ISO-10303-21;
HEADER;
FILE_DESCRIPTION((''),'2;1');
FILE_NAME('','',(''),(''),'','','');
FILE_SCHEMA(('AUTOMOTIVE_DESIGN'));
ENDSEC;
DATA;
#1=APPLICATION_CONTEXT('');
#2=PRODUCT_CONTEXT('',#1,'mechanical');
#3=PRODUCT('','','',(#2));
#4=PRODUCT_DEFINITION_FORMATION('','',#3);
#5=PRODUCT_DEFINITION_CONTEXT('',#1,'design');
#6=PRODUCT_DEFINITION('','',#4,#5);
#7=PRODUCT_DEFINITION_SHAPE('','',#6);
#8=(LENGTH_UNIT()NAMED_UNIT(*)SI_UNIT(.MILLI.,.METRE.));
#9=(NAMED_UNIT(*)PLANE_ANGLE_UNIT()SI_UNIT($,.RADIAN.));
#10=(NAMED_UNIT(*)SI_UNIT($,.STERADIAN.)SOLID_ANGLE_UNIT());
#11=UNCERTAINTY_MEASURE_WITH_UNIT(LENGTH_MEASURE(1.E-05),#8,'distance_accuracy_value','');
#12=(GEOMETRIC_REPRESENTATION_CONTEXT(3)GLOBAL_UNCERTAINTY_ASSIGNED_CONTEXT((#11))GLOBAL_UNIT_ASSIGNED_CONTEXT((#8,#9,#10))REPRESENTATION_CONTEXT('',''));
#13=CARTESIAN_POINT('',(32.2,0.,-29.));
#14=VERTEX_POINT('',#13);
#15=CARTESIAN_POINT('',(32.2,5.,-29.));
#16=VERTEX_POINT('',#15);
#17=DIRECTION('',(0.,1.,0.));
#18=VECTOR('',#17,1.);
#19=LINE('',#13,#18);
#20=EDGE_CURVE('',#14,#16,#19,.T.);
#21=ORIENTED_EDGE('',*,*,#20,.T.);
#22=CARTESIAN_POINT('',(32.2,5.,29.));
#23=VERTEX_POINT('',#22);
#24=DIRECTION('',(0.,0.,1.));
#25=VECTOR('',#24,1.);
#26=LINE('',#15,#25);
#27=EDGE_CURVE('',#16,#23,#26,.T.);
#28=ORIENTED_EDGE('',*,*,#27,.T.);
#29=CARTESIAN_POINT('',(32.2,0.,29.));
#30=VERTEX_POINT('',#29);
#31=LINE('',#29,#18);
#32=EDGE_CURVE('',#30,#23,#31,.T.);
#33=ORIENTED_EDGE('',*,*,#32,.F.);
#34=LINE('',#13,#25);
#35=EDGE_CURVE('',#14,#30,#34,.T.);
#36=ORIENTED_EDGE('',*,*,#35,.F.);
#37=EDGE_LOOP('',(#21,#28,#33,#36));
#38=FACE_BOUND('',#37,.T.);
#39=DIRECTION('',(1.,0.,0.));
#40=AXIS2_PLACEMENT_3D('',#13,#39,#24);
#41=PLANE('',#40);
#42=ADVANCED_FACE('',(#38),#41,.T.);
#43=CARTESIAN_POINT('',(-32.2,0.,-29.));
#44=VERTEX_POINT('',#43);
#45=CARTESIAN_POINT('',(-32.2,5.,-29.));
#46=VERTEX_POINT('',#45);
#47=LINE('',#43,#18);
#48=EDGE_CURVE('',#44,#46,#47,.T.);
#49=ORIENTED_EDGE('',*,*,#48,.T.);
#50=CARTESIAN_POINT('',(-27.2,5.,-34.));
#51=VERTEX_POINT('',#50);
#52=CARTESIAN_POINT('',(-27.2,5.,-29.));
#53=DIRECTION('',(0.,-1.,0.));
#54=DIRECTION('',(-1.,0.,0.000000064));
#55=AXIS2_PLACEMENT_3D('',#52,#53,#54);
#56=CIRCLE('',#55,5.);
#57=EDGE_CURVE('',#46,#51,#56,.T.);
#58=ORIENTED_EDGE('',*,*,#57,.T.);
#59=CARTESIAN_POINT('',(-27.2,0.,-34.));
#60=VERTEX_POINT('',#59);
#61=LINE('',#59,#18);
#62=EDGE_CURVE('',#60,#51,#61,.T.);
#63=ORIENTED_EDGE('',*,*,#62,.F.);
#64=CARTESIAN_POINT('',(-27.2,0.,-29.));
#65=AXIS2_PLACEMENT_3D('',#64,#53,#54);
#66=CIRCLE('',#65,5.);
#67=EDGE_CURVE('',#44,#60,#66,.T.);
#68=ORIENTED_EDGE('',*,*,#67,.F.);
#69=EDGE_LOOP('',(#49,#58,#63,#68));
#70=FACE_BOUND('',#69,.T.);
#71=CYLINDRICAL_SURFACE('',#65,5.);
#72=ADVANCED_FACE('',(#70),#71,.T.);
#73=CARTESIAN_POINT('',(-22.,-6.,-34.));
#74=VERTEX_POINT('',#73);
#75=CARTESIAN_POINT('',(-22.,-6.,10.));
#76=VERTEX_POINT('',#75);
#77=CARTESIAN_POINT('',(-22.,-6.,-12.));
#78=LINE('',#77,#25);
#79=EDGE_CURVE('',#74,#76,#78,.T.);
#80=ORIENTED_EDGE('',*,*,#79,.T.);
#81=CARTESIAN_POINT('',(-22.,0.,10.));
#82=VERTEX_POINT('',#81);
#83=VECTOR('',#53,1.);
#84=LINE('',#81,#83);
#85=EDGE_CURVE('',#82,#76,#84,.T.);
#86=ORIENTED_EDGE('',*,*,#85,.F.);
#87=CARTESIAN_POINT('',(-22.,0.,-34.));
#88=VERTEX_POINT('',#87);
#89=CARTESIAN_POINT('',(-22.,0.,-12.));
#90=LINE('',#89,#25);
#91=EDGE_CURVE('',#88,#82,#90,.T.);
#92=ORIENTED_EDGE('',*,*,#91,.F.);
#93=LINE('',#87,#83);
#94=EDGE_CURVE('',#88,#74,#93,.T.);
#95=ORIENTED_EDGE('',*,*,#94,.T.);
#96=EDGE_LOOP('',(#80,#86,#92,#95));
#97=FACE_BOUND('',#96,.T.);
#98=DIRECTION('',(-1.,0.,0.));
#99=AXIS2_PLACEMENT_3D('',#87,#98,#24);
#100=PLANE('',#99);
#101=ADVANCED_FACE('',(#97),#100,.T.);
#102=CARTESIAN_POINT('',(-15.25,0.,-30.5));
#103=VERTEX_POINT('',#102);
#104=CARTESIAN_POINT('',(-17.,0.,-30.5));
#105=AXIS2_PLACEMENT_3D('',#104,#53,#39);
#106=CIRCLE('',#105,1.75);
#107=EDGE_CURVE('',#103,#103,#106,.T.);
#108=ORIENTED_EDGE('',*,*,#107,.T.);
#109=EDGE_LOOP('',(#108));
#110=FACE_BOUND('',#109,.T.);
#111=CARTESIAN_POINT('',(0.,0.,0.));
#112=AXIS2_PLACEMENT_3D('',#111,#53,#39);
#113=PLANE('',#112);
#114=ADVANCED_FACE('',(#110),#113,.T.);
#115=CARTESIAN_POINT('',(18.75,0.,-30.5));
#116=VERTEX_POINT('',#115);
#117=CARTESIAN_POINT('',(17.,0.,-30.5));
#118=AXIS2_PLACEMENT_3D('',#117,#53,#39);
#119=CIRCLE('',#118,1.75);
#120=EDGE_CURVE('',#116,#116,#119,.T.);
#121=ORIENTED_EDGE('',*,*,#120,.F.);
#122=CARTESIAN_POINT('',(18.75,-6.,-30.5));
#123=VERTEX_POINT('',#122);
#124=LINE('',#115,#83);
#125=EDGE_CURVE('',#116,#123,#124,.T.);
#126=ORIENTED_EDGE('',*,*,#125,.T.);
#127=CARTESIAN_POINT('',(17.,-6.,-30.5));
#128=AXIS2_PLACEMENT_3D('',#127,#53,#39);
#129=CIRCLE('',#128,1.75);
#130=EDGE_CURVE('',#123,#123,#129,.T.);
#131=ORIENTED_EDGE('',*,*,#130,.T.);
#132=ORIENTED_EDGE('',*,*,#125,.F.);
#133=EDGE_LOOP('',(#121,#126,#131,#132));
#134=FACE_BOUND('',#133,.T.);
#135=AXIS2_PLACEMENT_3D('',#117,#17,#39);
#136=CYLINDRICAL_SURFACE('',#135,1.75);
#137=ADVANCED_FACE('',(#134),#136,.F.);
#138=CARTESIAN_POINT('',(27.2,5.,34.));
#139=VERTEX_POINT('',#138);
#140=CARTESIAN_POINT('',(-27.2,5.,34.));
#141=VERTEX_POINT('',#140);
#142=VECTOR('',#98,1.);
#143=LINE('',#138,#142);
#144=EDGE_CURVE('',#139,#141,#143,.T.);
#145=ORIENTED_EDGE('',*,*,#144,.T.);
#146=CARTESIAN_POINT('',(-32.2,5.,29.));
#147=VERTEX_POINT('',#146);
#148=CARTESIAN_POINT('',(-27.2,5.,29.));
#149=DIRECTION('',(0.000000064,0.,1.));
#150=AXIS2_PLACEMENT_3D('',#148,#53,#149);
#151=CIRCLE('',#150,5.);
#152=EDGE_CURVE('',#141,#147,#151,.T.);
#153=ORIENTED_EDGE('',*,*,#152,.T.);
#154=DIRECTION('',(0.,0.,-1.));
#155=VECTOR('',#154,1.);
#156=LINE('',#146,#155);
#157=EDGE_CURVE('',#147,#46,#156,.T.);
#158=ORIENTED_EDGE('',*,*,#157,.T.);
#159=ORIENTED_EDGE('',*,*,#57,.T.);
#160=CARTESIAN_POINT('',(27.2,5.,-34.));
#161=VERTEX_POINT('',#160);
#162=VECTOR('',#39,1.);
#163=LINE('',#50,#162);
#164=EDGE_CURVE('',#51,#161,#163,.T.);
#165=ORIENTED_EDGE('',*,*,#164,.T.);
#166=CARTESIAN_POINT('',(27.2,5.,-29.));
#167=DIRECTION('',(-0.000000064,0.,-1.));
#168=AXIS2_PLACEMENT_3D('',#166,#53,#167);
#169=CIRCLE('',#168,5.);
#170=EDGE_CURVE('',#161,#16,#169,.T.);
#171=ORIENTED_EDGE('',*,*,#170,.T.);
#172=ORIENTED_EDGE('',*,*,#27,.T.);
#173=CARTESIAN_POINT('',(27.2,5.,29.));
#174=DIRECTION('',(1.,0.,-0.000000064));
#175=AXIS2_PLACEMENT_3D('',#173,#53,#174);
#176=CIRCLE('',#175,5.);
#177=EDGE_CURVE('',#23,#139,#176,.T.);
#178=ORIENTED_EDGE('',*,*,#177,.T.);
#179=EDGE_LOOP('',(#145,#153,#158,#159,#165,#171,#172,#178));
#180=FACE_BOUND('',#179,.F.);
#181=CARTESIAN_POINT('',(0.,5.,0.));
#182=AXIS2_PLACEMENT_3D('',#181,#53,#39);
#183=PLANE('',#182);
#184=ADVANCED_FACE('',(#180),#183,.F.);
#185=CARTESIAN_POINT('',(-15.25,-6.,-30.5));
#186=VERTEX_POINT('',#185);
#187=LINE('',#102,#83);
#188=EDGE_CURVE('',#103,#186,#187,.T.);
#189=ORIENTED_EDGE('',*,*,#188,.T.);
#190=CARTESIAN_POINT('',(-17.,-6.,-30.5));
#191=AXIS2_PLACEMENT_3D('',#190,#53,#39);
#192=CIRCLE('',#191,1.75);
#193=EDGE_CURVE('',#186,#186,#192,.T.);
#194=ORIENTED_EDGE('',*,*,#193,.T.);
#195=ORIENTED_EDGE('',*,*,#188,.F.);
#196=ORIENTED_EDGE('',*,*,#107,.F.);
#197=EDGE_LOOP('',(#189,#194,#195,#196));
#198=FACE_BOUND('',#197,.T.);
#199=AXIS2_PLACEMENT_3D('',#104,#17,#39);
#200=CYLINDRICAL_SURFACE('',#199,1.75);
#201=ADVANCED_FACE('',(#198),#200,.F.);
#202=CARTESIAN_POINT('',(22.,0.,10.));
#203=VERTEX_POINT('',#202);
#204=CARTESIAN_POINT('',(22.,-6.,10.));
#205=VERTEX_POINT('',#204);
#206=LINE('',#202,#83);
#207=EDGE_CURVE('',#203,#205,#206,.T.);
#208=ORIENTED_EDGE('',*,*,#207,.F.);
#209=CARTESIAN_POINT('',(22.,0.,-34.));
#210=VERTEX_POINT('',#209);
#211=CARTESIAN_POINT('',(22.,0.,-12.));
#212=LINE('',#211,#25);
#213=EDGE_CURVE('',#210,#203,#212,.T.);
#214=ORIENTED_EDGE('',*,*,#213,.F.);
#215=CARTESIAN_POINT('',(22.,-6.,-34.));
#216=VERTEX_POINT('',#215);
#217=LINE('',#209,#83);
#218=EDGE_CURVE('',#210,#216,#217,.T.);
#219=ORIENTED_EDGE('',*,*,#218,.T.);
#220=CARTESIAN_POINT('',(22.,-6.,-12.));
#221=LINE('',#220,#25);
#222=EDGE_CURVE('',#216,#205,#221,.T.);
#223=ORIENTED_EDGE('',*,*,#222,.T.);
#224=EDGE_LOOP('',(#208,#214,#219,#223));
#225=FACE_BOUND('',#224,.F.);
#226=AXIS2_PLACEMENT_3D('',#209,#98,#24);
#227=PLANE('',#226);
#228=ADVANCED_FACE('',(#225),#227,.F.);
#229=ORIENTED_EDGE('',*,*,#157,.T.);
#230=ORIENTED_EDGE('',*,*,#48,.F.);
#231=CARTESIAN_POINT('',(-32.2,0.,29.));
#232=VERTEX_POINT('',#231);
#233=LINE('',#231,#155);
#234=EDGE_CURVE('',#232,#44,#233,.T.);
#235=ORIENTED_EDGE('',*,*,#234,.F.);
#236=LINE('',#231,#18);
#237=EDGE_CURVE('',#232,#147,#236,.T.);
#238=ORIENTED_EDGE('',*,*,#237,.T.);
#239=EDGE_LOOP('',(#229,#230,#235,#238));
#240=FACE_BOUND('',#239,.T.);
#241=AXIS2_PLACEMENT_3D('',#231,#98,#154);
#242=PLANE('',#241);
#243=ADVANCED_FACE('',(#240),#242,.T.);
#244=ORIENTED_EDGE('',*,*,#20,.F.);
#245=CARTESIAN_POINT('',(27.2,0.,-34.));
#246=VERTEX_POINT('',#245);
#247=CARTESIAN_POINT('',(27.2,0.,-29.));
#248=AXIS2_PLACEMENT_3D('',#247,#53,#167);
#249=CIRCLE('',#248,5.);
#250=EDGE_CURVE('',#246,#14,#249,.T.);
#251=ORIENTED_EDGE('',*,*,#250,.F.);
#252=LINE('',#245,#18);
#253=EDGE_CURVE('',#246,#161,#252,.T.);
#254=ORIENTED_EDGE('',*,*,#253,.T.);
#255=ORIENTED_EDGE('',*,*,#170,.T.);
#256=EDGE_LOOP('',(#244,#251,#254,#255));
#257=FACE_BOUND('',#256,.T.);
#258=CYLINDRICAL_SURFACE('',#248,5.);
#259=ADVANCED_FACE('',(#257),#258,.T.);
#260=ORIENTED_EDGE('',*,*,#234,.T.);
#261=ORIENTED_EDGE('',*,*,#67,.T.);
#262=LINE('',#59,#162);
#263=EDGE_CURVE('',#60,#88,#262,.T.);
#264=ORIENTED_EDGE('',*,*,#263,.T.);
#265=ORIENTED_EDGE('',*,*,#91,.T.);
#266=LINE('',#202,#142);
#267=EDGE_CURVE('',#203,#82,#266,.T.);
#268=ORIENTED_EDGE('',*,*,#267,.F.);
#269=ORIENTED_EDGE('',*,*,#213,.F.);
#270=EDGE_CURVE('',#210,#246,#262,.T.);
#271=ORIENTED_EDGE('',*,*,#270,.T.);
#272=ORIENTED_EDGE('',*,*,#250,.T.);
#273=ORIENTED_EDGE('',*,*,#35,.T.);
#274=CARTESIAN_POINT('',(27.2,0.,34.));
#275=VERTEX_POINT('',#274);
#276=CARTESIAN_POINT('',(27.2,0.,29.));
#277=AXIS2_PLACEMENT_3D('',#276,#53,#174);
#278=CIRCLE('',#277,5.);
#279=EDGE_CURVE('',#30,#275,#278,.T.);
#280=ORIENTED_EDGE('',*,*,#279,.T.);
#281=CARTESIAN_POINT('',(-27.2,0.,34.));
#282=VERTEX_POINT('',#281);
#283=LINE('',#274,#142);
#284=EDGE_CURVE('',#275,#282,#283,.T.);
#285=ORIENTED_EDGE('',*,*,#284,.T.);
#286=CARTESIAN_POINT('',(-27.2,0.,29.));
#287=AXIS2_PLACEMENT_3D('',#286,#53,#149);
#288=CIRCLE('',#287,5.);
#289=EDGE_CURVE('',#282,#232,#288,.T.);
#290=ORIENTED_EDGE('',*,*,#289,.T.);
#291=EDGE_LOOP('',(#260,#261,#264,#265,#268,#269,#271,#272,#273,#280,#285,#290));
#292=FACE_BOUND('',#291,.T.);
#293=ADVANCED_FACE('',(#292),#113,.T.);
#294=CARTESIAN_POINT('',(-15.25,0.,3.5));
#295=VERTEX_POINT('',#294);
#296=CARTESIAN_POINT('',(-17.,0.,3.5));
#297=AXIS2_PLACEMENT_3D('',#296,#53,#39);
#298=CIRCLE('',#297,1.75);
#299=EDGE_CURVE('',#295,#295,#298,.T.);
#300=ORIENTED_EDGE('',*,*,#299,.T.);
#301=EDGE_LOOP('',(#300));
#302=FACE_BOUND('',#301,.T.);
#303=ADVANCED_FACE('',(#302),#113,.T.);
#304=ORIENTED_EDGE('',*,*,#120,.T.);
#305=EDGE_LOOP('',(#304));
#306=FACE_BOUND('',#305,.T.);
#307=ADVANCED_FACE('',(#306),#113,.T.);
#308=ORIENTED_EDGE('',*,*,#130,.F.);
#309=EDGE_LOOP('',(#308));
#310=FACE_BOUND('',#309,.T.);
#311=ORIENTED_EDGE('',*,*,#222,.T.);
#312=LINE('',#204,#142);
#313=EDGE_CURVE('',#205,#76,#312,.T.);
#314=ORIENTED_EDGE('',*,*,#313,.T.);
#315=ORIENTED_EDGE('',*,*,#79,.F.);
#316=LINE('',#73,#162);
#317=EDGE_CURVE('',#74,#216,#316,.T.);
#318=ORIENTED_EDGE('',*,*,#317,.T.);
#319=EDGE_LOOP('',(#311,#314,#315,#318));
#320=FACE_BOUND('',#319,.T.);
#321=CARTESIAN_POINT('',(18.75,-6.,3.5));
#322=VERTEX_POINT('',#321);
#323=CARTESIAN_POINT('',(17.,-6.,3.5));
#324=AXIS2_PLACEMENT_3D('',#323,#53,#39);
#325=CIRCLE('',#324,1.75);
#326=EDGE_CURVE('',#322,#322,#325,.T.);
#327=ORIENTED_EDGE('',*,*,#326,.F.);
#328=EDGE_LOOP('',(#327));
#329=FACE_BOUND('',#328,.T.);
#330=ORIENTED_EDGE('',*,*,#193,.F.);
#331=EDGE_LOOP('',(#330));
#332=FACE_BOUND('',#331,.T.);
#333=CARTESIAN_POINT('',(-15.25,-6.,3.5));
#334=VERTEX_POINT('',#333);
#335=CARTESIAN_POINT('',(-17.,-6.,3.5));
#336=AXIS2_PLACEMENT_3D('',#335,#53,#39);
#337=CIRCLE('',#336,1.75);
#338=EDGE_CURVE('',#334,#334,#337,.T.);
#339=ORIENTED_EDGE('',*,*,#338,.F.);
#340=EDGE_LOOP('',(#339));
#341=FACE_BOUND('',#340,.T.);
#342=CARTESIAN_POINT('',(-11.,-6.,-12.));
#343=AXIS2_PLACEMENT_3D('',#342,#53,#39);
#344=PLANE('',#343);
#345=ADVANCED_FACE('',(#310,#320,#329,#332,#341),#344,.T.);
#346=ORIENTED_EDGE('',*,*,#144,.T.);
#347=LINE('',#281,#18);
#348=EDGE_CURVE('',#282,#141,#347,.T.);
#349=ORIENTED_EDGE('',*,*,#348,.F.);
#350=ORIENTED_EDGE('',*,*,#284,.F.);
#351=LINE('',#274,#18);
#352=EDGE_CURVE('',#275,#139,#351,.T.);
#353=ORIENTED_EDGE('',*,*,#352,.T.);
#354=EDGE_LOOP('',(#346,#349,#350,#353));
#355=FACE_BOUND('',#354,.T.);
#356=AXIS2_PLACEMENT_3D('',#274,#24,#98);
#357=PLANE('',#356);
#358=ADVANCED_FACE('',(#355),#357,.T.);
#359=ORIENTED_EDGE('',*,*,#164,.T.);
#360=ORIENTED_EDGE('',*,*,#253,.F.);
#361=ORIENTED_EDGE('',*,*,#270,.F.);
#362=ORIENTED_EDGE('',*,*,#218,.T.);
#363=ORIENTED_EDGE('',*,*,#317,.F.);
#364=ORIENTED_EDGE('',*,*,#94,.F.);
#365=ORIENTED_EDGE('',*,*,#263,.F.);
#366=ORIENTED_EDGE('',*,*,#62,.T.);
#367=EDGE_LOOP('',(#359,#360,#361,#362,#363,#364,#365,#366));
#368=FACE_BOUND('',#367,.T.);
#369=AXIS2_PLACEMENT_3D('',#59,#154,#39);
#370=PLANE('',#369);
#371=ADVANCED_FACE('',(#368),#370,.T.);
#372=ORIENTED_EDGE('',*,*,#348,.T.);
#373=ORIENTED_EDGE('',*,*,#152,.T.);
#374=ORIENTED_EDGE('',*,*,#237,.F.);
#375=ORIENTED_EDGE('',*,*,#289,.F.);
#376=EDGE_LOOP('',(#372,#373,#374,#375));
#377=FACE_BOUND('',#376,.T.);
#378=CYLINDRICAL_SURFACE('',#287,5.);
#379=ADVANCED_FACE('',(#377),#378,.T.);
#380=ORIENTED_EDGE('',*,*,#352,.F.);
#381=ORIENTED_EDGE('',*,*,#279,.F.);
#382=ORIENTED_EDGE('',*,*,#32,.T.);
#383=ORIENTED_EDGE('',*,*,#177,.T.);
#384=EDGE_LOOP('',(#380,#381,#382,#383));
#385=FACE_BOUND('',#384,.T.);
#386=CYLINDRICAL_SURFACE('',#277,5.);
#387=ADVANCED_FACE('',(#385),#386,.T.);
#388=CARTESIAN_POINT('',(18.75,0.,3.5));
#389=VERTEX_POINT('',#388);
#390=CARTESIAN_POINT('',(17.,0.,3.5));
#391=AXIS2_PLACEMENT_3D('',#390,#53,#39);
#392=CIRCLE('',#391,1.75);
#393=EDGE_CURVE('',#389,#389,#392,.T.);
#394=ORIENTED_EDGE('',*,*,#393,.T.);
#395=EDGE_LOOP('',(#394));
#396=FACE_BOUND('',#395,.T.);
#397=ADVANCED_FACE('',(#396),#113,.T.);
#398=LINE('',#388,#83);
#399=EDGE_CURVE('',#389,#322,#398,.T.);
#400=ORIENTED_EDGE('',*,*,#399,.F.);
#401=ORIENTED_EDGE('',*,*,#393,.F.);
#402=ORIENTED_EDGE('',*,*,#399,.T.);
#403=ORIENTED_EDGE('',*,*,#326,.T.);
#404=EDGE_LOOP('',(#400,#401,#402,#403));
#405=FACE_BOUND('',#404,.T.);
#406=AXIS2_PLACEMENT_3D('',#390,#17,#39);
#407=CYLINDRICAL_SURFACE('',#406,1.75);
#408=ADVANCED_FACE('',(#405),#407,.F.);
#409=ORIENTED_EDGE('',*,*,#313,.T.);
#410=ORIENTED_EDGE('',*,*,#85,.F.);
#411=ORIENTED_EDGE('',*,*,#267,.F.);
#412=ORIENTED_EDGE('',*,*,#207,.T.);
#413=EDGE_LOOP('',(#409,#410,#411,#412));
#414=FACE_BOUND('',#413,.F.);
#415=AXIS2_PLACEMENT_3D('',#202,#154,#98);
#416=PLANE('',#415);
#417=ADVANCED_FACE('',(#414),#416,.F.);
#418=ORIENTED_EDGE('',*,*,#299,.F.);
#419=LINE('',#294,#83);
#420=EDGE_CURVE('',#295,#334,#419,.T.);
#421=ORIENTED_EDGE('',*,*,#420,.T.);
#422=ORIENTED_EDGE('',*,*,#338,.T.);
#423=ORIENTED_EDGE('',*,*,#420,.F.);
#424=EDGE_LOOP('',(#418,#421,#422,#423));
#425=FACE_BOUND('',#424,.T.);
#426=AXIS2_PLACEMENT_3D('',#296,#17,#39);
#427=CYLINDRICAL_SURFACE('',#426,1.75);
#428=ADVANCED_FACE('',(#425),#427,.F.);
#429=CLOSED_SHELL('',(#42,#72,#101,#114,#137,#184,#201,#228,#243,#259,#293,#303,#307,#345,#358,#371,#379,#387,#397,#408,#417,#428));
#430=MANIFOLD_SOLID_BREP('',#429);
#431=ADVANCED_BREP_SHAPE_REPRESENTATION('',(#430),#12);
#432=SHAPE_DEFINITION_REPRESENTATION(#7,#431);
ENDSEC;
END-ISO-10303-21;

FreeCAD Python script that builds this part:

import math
import FreeCAD as App
import Part
import Sketcher

V = App.Vector
Q = App.Units.Quantity


def add_polygon(sketch, points):
    """Adds a closed chain of lines whose ends are joined by coincident constraints."""
    first, n = sketch.GeometryCount, len(points)
    for a, b in zip(points, points[1:] + points[:1]):
        sketch.addGeometry(Part.LineSegment(App.Vector(*a, 0), App.Vector(*b, 0)), False)
    for i in range(n):
        sketch.addConstraint(Sketcher.Constraint("Coincident", first + i, 2, first + (i + 1) % n, 1))

doc = App.newDocument("Part")
body = doc.addObject("PartDesign::Body", "Body")

# Sketch on XZ plane
sketch1 = body.newObject("Sketcher::SketchObject", "Sketch")
sketch1.AttachmentSupport = (doc.getObject("XZ_Plane"), [""])
sketch1.MapMode = "FlatFace"
sketch1.addGeometry(Part.LineSegment(V(27.2, 34, 0), V(-27.2, 34, 0)), False)
sketch1.addGeometry(Part.ArcOfCircle(Part.Circle(V(-27.2, 29, 0), V(0, 0, 1), 5), math.radians(90), math.radians(180)), False)
sketch1.addGeometry(Part.LineSegment(V(-32.2, 29, 0), V(-32.2, -29, 0)), False)
sketch1.addGeometry(Part.ArcOfCircle(Part.Circle(V(-27.2, -29, 0), V(0, 0, 1), 5), math.radians(180), math.radians(270)), False)
sketch1.addGeometry(Part.LineSegment(V(-27.2, -34, 0), V(27.2, -34, 0)), False)
sketch1.addGeometry(Part.ArcOfCircle(Part.Circle(V(27.2, -29, 0), V(0, 0, 1), 5), math.radians(-90), math.radians(0)), False)
sketch1.addGeometry(Part.LineSegment(V(32.2, -29, 0), V(32.2, 29, 0)), False)
sketch1.addGeometry(Part.ArcOfCircle(Part.Circle(V(27.2, 29, 0), V(0, 0, 1), 5), math.radians(0), math.radians(90)), False)
sketch1.addConstraint(Sketcher.Constraint("Tangent", 0, 2, 1, 1))
sketch1.addConstraint(Sketcher.Constraint("Tangent", 1, 2, 2, 1))
sketch1.addConstraint(Sketcher.Constraint("Tangent", 2, 2, 3, 1))
sketch1.addConstraint(Sketcher.Constraint("Tangent", 3, 2, 4, 1))
sketch1.addConstraint(Sketcher.Constraint("Tangent", 4, 2, 5, 1))
sketch1.addConstraint(Sketcher.Constraint("Tangent", 5, 2, 6, 1))
sketch1.addConstraint(Sketcher.Constraint("Tangent", 6, 2, 7, 1))
sketch1.addConstraint(Sketcher.Constraint("Tangent", 7, 2, 0, 1))
sketch1.addConstraint(Sketcher.Constraint("Horizontal", 0))
sketch1.addConstraint(Sketcher.Constraint("Vertical", 2))
sketch1.addConstraint(Sketcher.Constraint("Horizontal", 4))
sketch1.addConstraint(Sketcher.Constraint("Vertical", 6))
sketch1.addConstraint(Sketcher.Constraint("Equal", 1, 3))
sketch1.addConstraint(Sketcher.Constraint("Equal", 3, 5))
sketch1.addConstraint(Sketcher.Constraint("Equal", 5, 7))
sketch1.addConstraint(Sketcher.Constraint("Symmetric", 1, 3, 5, 3, -1, 1))
sketch1.addConstraint(Sketcher.Constraint("Radius", 1, Q("5 mm")))
sketch1.addConstraint(Sketcher.Constraint("DistanceY", 2, 2, 2, 1, Q("58 mm")))
sketch1.addConstraint(Sketcher.Constraint("DistanceX", 0, 2, 0, 1, Q("54.4 mm")))
pad1 = body.newObject("PartDesign::Pad", "Pad")
pad1.Profile = sketch1
pad1.Length = 5
pad1.Reversed = True

# Sketch on XZ plane
sketch2 = body.newObject("Sketcher::SketchObject", "Sketch001")
sketch2.AttachmentSupport = (doc.getObject("XZ_Plane"), [""])
sketch2.MapMode = "FlatFace"
add_polygon(sketch2, [(-22, 10), (-22, -34), (22, -34), (22, 10)])  # lines 0-3
sketch2.addGeometry(Part.Circle(V(-17, -30.5, 0), V(0, 0, 1), 1.8), False)  # 4
sketch2.addGeometry(Part.Circle(V(17, -30.5, 0), V(0, 0, 1), 1.8), False)  # 5
sketch2.addGeometry(Part.Circle(V(-17, 3.5, 0), V(0, 0, 1), 1.8), False)  # 6
sketch2.addGeometry(Part.Circle(V(17, 3.5, 0), V(0, 0, 1), 1.8), False)  # 7
sketch2.addConstraint(Sketcher.Constraint("Vertical", 0))
sketch2.addConstraint(Sketcher.Constraint("Horizontal", 1))
sketch2.addConstraint(Sketcher.Constraint("Vertical", 2))
sketch2.addConstraint(Sketcher.Constraint("Horizontal", 3))
sketch2.addConstraint(Sketcher.Constraint("Equal", 4, 5))
sketch2.addConstraint(Sketcher.Constraint("Equal", 5, 6))
sketch2.addConstraint(Sketcher.Constraint("Equal", 6, 7))
sketch2.addConstraint(Sketcher.Constraint("Symmetric", 4, 3, 5, 3, -2))
sketch2.addConstraint(Sketcher.Constraint("Symmetric", 6, 3, 7, 3, -2))
sketch2.addConstraint(Sketcher.Constraint("Vertical", 4, 3, 6, 3))
sketch2.addConstraint(Sketcher.Constraint("Equal", 3, 0))
sketch2.addConstraint(Sketcher.Constraint("Diameter", 4, Q("3.5 mm")))
sketch2.addConstraint(Sketcher.Constraint("DistanceX", 1, 1, 1, 2, Q("44 mm")))
sketch2.addConstraint(Sketcher.Constraint("DistanceX", 4, 3, -1, 1, Q("17 mm")))
sketch2.addConstraint(Sketcher.Constraint("DistanceX", 0, 2, -1, 1, Q("22 mm")))
sketch2.addConstraint(Sketcher.Constraint("DistanceY", 0, 2, -1, 1, Q("34 mm")))
sketch2.addConstraint(Sketcher.Constraint("DistanceY", 4, 3, 6, 3, Q("34 mm")))
sketch2.addConstraint(Sketcher.Constraint("DistanceY", 4, 3, -1, 1, Q("30.5 mm")))
pad2 = body.newObject("PartDesign::Pad", "Pad001")
pad2.Profile = sketch2
pad2.Length = 6

doc.recompute()
